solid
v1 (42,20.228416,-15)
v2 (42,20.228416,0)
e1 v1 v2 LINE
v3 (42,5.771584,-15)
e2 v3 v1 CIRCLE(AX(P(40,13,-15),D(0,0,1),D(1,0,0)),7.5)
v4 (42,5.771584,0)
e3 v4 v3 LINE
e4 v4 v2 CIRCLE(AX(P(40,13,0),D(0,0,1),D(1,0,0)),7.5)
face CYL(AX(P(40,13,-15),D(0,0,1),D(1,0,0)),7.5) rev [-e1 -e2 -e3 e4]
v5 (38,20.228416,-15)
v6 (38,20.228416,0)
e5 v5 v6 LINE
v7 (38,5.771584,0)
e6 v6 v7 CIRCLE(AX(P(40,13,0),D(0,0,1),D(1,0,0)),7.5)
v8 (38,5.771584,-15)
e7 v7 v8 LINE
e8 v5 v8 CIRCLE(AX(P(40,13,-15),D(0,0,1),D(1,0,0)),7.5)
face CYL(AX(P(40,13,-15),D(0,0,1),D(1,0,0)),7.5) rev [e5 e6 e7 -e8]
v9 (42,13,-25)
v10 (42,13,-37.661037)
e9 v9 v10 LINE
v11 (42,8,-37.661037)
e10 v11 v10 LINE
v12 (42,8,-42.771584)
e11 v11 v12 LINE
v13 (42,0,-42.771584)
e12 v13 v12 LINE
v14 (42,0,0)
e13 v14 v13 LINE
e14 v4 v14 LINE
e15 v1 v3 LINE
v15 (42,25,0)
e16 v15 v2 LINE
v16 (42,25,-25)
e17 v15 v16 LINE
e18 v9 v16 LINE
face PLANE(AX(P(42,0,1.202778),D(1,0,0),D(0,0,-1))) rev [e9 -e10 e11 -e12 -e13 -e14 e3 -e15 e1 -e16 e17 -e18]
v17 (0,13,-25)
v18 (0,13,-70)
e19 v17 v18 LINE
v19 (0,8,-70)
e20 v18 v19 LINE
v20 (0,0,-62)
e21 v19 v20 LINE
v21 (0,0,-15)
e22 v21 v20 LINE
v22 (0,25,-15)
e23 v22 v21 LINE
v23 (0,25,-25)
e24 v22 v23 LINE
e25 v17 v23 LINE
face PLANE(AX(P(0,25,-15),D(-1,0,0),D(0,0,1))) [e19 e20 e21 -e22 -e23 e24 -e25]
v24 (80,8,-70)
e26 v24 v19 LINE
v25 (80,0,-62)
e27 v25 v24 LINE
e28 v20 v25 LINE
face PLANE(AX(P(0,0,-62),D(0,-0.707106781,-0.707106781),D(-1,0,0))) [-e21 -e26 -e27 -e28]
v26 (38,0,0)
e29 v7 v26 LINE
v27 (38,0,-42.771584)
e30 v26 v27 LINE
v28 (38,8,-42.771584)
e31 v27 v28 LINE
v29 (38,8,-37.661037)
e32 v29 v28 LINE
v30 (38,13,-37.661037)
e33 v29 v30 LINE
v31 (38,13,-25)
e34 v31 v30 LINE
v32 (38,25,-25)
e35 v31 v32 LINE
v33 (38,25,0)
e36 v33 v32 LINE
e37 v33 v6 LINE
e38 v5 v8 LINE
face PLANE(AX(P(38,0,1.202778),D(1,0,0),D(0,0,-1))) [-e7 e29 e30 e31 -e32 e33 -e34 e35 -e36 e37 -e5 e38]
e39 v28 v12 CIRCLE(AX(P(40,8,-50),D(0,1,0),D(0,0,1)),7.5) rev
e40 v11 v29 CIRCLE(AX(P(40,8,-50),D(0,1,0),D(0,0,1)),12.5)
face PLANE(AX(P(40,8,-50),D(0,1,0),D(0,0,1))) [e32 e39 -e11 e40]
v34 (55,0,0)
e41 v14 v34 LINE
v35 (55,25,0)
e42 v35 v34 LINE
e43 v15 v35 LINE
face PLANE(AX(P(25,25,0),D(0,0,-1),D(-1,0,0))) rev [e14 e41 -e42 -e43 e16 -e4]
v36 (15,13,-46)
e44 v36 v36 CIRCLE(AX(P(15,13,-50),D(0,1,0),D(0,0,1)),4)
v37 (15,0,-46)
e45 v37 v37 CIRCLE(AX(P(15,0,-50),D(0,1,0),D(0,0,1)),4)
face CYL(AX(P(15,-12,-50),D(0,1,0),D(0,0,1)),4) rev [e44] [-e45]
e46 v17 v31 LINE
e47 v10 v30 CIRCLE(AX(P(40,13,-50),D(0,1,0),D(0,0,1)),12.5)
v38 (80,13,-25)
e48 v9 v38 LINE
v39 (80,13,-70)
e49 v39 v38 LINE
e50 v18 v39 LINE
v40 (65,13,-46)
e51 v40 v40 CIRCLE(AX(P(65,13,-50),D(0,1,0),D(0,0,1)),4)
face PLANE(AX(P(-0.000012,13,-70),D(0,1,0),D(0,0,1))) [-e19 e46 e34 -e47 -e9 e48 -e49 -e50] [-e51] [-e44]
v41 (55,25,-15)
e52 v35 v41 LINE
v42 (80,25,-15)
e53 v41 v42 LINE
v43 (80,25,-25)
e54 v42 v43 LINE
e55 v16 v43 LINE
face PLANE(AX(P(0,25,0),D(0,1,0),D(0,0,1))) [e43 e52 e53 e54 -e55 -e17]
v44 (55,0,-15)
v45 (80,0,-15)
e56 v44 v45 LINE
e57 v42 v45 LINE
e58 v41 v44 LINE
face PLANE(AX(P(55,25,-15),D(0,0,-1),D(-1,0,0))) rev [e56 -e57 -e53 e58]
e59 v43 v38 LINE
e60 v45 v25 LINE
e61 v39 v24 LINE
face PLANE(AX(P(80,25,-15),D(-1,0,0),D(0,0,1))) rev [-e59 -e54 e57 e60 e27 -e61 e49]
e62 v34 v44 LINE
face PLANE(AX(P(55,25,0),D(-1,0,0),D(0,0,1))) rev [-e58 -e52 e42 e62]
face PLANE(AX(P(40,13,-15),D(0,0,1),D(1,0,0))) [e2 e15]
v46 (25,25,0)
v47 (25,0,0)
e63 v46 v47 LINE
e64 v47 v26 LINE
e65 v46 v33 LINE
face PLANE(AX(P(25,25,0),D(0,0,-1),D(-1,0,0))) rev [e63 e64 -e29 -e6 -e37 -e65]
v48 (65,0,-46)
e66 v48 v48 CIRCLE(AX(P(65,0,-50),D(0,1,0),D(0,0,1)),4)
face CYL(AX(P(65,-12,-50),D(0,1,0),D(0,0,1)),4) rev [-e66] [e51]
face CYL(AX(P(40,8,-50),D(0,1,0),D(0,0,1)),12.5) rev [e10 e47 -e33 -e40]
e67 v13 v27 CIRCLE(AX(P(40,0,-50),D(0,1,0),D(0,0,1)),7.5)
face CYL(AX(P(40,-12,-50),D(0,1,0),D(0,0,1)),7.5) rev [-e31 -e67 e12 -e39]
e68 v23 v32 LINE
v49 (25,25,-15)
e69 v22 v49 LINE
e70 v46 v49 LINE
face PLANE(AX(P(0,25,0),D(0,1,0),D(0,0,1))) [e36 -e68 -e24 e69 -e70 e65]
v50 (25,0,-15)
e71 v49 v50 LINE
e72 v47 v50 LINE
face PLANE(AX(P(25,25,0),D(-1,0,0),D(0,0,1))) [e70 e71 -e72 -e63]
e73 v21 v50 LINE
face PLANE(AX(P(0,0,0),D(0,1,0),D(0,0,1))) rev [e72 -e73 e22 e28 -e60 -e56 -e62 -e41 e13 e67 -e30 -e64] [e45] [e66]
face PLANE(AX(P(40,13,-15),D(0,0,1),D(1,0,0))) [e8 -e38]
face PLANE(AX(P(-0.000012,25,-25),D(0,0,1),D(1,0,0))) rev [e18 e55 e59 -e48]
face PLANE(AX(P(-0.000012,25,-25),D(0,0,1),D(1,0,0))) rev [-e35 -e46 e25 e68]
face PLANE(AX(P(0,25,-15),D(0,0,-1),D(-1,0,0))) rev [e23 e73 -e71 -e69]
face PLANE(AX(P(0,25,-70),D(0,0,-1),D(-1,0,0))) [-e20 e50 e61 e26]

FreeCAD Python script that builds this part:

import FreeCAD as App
import Part
import Sketcher


def edges_at(feature, points):
    """Names of the edges that pass closest to the given points."""
    edges = feature.Shape.Edges
    near = lambda p: min(range(len(edges)), key=lambda i: edges[i].distToShape(Part.Vertex(*p))[0])
    return sorted({f"Edge{near(p) + 1}" for p in points})


def add_polygon(sketch, points):
    """Adds a closed chain of lines whose ends are joined by coincident constraints."""
    first, n = sketch.GeometryCount, len(points)
    for a, b in zip(points, points[1:] + points[:1]):
        sketch.addGeometry(Part.LineSegment(App.Vector(*a, 0), App.Vector(*b, 0)), False)
    for i in range(n):
        sketch.addConstraint(Sketcher.Constraint("Coincident", first + i, 2, first + (i + 1) % n, 1))

doc = App.newDocument("Part")
body = doc.addObject("PartDesign::Body", "Body")

# Sketch on XZ plane
sketch1 = doc.addObject("Sketcher::SketchObject", "Sketch")
body.addObject(sketch1)
sketch1.AttachmentSupport = (doc.XZ_Plane, [""])
sketch1.MapMode = "FlatFace"
add_polygon(sketch1, [(25, 0), (55, 0), (55, -15), (80, -15), (80, -70), (0, -70), (0, -15), (25, -15)])  # lines 0-7
sketch1.addConstraint([
    Sketcher.Constraint("Horizontal", 0),
    Sketcher.Constraint("Vertical", 1),
    Sketcher.Constraint("Horizontal", 2),
    Sketcher.Constraint("Vertical", 3),
    Sketcher.Constraint("Horizontal", 4),
    Sketcher.Constraint("Vertical", 5),
    Sketcher.Constraint("Horizontal", 6),
    Sketcher.Constraint("Vertical", 7),
    Sketcher.Constraint("PointOnObject", 0, 2, -1),
    Sketcher.Constraint("PointOnObject", 4, 2, -2),
    Sketcher.Constraint("Horizontal", 2, 2, 5, 2),
    Sketcher.Constraint("Equal", 2, 6),
    Sketcher.Constraint("DistanceX", 0, 1, 0, 2, 30.0),
    Sketcher.Constraint("DistanceX", 2, 1, 2, 2, 25.0),
    Sketcher.Constraint("DistanceY", 1, 2, 1, 1, 15.0),
    Sketcher.Constraint("DistanceY", 3, 2, 3, 1, 55.0),
])
pad1 = doc.addObject("PartDesign::Pad", "Pad")
body.addObject(pad1)
pad1.Profile = sketch1
pad1.Length = 25
pad1.Reversed = True

# Sketch on YZ plane
sketch2 = doc.addObject("Sketcher::SketchObject", "Sketch001")
body.addObject(sketch2)
sketch2.AttachmentSupport = (doc.YZ_Plane, [""])
sketch2.MapMode = "FlatFace"
add_polygon(sketch2, [(25, -25), (13, -25), (13, -70), (25, -70)])  # lines 0-3
sketch2.addConstraint([
    Sketcher.Constraint("Horizontal", 0),
    Sketcher.Constraint("Vertical", 1),
    Sketcher.Constraint("Horizontal", 2),
    Sketcher.Constraint("Vertical", 3),
    Sketcher.Constraint("DistanceX", 0, 2, 0, 1, 12.0),
    Sketcher.Constraint("DistanceY", 1, 2, 1, 1, 45.0),
    Sketcher.Constraint("DistanceX", -1, 1, 0, 2, 13.0),
    Sketcher.Constraint("DistanceY", 0, 2, -1, 1, 25.0),
])
pocket1 = doc.addObject("PartDesign::Pocket", "Pocket")
body.addObject(pocket1)
pocket1.Profile = sketch2
pocket1.Type = "ThroughAll"
pocket1.Midplane = True
doc.recompute()

chamfer = doc.addObject("PartDesign::Chamfer", "Chamfer")
body.addObject(chamfer)
chamfer.Base = (pocket1, edges_at(pocket1, [(40, 0, -70)]))
chamfer.Size = 8

# Sketch on XZ plane
sketch3 = doc.addObject("Sketcher::SketchObject", "Sketch002")
body.addObject(sketch3)
sketch3.AttachmentSupport = (doc.XZ_Plane, [""])
sketch3.MapMode = "FlatFace"
sketch3.AttachmentOffset = App.Placement(App.Vector(0, 0, -13), App.Rotation())
sketch3.addGeometry([
    Part.Circle(App.Vector(40, -50, 0), App.Vector(0, 0, 1), 7.5),
    Part.Circle(App.Vector(65, -50, 0), App.Vector(0, 0, 1), 4),
    Part.Circle(App.Vector(15, -50, 0), App.Vector(0, 0, 1), 4),
], False)
sketch3.addConstraint([
    Sketcher.Constraint("Equal", 1, 2),
    Sketcher.Constraint("Horizontal", 0, 3, 1, 3),
    Sketcher.Constraint("Horizontal", 1, 3, 2, 3),
    Sketcher.Constraint("Diameter", 0, 15.0),
    Sketcher.Constraint("Diameter", 1, 8.0),
    Sketcher.Constraint("DistanceX", -1, 1, 0, 3, 40.0),
    Sketcher.Constraint("DistanceY", 0, 3, -1, 1, 50.0),
    Sketcher.Constraint("DistanceX", -1, 1, 1, 3, 65.0),
    Sketcher.Constraint("DistanceX", -1, 1, 2, 3, 15.0),
])
pocket2 = doc.addObject("PartDesign::Pocket", "Pocket001")
body.addObject(pocket2)
pocket2.Profile = sketch3
pocket2.Length = 25
pocket2.Reversed = True

# Sketch on XZ plane
sketch4 = doc.addObject("Sketcher::SketchObject", "Sketch003")
body.addObject(sketch4)
sketch4.AttachmentSupport = (doc.XZ_Plane, [""])
sketch4.MapMode = "FlatFace"
sketch4.AttachmentOffset = App.Placement(App.Vector(0, 0, -13), App.Rotation())
sketch4.addGeometry(Part.Circle(App.Vector(40, -50, 0), App.Vector(0, 0, 1), 12), False)
sketch4.addConstraint([
    Sketcher.Constraint("Diameter", 0, 25.0),
    Sketcher.Constraint("DistanceX", -1, 1, 0, 3, 40.0),
    Sketcher.Constraint("DistanceY", 0, 3, -1, 1, 50.0),
])
pocket3 = doc.addObject("PartDesign::Pocket", "Pocket002")
body.addObject(pocket3)
pocket3.Profile = sketch4
pocket3.Length = 5
pocket3.Reversed = True

# Sketch on XZ plane
sketch5 = doc.addObject("Sketcher::SketchObject", "Sketch004")
body.addObject(sketch5)
sketch5.AttachmentSupport = (doc.XZ_Plane, [""])
sketch5.MapMode = "FlatFace"
sketch5.AttachmentOffset = App.Placement(App.Vector(0, 0, -25), App.Rotation())
add_polygon(sketch5, [(38, -51.6), (38, 1.2), (42, 1.2), (42, -51.6)])  # lines 0-3
sketch5.addConstraint([
    Sketcher.Constraint("Vertical", 0),
    Sketcher.Constraint("Horizontal", 1),
    Sketcher.Constraint("Vertical", 2),
    Sketcher.Constraint("Horizontal", 3),
    Sketcher.Constraint("DistanceX", 1, 1, 1, 2, 4.0),
    Sketcher.Constraint("DistanceX", -1, 1, 0, 2, 38.0),
    Sketcher.Constraint("DistanceY", 0, 1, 0, 2, 52.76211),
    Sketcher.Constraint("DistanceY", -1, 1, 0, 2, 1.202778),
])
pocket4 = doc.addObject("PartDesign::Pocket", "Pocket003")
body.addObject(pocket4)
pocket4.Profile = sketch5
pocket4.Type = "ThroughAll"
pocket4.Reversed = True

# Sketch on XY plane
sketch6 = doc.addObject("Sketcher::SketchObject", "Sketch005")
body.addObject(sketch6)
sketch6.AttachmentSupport = (doc.XY_Plane, [""])
sketch6.MapMode = "FlatFace"
sketch6.addGeometry(Part.Circle(App.Vector(40, 13, 0), App.Vector(0, 0, 1), 8), False)
sketch6.addConstraint([
    Sketcher.Constraint("Diameter", 0, 15.0),
    Sketcher.Constraint("DistanceX", -1, 1, 0, 3, 40.0),
    Sketcher.Constraint("DistanceY", -1, 1, 0, 3, 13.0),
])
pocket5 = doc.addObject("PartDesign::Pocket", "Pocket004")
body.addObject(pocket5)
pocket5.Profile = sketch6
pocket5.Length = 15

doc.recompute()
